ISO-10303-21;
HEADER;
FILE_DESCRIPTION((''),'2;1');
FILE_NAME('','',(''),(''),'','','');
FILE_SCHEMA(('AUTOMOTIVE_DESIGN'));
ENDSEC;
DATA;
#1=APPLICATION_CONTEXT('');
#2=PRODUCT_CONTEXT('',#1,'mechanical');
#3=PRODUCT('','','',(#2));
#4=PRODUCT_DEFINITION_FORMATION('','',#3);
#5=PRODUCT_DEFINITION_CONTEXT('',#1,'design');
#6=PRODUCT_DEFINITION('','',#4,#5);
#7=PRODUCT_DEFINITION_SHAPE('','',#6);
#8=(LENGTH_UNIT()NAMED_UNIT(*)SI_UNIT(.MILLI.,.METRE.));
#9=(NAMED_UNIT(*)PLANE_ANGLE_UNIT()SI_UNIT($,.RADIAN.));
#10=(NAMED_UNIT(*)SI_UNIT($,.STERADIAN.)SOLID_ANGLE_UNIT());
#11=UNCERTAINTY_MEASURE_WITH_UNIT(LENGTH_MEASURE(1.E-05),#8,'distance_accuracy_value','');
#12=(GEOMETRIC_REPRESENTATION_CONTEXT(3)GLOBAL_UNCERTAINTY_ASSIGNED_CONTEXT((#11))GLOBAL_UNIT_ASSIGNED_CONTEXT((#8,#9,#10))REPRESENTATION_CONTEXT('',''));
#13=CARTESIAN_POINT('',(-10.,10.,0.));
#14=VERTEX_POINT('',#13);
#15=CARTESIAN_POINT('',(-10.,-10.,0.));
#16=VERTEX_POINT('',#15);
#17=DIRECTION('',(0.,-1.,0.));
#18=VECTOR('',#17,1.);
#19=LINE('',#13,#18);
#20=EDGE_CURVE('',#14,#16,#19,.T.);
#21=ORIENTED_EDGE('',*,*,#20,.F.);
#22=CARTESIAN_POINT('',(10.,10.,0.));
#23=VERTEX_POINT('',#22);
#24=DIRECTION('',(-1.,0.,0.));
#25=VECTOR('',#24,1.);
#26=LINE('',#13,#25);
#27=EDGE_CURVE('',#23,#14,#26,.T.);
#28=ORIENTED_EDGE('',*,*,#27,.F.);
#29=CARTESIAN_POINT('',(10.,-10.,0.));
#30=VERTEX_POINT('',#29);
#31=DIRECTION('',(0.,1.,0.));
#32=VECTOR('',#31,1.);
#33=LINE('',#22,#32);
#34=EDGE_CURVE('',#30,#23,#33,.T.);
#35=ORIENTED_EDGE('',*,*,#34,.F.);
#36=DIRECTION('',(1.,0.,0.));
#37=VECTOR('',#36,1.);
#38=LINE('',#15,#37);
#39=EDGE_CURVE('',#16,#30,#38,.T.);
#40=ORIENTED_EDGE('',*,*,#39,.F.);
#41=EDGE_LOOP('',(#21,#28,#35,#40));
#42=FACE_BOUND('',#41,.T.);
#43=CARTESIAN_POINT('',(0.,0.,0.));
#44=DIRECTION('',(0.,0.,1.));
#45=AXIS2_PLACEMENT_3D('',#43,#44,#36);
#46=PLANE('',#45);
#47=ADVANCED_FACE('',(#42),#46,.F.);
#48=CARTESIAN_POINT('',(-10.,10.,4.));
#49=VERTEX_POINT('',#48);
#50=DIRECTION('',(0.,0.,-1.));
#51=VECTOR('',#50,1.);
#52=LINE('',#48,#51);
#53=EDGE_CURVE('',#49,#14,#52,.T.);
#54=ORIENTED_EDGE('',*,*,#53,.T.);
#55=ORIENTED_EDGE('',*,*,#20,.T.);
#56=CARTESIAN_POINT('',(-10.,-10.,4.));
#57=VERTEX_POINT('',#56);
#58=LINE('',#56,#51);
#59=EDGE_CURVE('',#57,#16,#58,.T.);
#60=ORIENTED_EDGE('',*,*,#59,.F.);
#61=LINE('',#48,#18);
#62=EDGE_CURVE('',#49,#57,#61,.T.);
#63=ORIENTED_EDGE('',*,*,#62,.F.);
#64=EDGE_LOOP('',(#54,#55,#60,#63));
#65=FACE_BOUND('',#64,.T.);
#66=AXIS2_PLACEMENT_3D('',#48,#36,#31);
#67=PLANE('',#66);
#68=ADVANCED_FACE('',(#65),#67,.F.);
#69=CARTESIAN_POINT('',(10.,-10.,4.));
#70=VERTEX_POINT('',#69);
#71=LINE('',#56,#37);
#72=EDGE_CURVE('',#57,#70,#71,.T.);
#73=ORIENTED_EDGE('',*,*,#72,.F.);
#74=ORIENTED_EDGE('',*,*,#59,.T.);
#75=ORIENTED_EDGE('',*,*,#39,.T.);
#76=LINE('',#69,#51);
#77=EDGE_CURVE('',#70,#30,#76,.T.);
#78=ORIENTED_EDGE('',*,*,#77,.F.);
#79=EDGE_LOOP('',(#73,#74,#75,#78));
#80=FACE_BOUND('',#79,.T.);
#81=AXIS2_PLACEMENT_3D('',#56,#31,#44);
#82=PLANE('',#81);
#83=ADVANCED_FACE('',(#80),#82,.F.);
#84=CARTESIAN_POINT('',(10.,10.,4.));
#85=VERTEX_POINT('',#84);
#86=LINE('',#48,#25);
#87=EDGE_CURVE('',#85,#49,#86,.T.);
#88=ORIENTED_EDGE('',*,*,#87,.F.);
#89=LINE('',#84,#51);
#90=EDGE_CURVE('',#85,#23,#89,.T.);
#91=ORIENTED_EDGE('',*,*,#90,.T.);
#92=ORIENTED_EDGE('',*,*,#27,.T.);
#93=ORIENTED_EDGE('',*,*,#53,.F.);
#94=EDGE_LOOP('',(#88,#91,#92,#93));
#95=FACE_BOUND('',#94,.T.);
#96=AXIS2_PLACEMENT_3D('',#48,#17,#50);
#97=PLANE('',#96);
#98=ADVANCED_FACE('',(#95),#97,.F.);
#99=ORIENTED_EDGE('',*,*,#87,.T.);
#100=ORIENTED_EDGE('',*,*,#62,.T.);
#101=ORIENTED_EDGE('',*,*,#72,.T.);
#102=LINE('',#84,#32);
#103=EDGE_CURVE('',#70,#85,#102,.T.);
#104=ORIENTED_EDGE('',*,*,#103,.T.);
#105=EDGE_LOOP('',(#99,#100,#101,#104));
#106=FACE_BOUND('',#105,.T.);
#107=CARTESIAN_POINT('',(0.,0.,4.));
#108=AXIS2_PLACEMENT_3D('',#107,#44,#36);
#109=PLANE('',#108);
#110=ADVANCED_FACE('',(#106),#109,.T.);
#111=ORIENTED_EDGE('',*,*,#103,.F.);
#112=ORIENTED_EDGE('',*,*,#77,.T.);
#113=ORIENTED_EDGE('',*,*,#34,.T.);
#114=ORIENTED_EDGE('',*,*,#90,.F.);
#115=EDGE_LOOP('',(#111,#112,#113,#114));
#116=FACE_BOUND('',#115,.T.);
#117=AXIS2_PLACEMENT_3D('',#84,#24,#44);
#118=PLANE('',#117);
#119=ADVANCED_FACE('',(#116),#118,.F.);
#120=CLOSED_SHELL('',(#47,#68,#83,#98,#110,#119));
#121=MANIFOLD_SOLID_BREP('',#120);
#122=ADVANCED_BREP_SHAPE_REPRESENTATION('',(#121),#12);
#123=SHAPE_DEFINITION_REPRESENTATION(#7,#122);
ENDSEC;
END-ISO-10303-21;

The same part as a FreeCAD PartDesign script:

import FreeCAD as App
import Part
import Sketcher
from FreeCAD import Vector

doc = App.newDocument("Part")
body = doc.addObject("PartDesign::Body", "Body")

# Sketch on XY plane
sketch1 = body.newObject("Sketcher::SketchObject", "Sketch")
sketch1.AttachmentSupport = (doc.getObject("XY_Plane"), [""])
sketch1.MapMode = "FlatFace"
sketch1.addGeometry(Part.LineSegment(Vector(-10, 10, 0), Vector(-10, -10, 0)), False)
sketch1.addGeometry(Part.LineSegment(Vector(-10, -10, 0), Vector(10, -10, 0)), False)
sketch1.addGeometry(Part.LineSegment(Vector(10, -10, 0), Vector(10, 10, 0)), False)
sketch1.addGeometry(Part.LineSegment(Vector(10, 10, 0), Vector(-10, 10, 0)), False)
sketch1.addConstraint(Sketcher.Constraint("Coincident", 0, 2, 1, 1))
sketch1.addConstraint(Sketcher.Constraint("Coincident", 1, 2, 2, 1))
sketch1.addConstraint(Sketcher.Constraint("Coincident", 2, 2, 3, 1))
sketch1.addConstraint(Sketcher.Constraint("Coincident", 3, 2, 0, 1))
sketch1.addConstraint(Sketcher.Constraint("Vertical", 0))
sketch1.addConstraint(Sketcher.Constraint("Horizontal", 1))
sketch1.addConstraint(Sketcher.Constraint("Vertical", 2))
sketch1.addConstraint(Sketcher.Constraint("Horizontal", 3))
sketch1.addConstraint(Sketcher.Constraint("Symmetric", 0, 2, 2, 2, -1, 1))
sketch1.addConstraint(Sketcher.Constraint("Equal", 3, 0))
sketch1.addConstraint(Sketcher.Constraint("DistanceX", 1, 1, 1, 2, 20.0))
pad1 = body.newObject("PartDesign::Pad", "Pad")
pad1.Profile = sketch1
pad1.Length = 4

doc.recompute()
